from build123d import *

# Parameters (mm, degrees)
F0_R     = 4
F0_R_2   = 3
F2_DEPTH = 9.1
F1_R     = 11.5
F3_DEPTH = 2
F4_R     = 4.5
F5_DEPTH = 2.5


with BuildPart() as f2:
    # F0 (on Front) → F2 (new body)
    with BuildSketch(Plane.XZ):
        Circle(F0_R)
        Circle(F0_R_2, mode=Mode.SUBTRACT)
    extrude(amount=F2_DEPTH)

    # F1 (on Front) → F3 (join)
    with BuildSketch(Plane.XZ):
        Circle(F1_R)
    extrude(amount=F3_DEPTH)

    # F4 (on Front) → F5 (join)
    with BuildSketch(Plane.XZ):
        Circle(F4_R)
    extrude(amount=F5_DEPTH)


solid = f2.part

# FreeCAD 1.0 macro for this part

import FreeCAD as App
import Part
import Sketcher

V = App.Vector
Q = App.Units.Quantity

doc = App.newDocument("Part")
body = doc.addObject("PartDesign::Body", "Body")

sketch1 = doc.addObject("Sketcher::SketchObject", "Sketch")
body.addObject(sketch1)
sketch1.AttachmentSupport = (doc.XZ_Plane, [""])
sketch1.MapMode = "FlatFace"
sketch1.addGeometry([
    Part.Circle(V(0, 0, 0), V(0, 0, 1), 4),
    Part.Circle(V(0, 0, 0), V(0, 0, 1), 3),
], False)
sketch1.addConstraint([
    Sketcher.Constraint("Coincident", 0, 3, -1, 1),
    Sketcher.Constraint("Coincident", 1, 3, -1, 1),
    Sketcher.Constraint("Diameter", 0, Q("8 mm")),
    Sketcher.Constraint("Diameter", 1, Q("6 mm")),
])
pad1 = doc.addObject("PartDesign::Pad", "Pad")
body.addObject(pad1)
pad1.Profile = sketch1
pad1.Length = 9.1

sketch2 = doc.addObject("Sketcher::SketchObject", "Sketch001")
body.addObject(sketch2)
sketch2.AttachmentSupport = (doc.XZ_Plane, [""])
sketch2.MapMode = "FlatFace"
sketch2.addGeometry(Part.Circle(V(0, 0, 0), V(0, 0, 1), 12), False)
sketch2.addConstraint([
    Sketcher.Constraint("Coincident", 0, 3, -1, 1),
    Sketcher.Constraint("Diameter", 0, Q("23 mm")),
])
pad2 = doc.addObject("PartDesign::Pad", "Pad001")
body.addObject(pad2)
pad2.Profile = sketch2
pad2.Length = 2

sketch3 = doc.addObject("Sketcher::SketchObject", "Sketch002")
body.addObject(sketch3)
sketch3.AttachmentSupport = (doc.XZ_Plane, [""])
sketch3.MapMode = "FlatFace"
sketch3.addGeometry(Part.Circle(V(0, 0, 0), V(0, 0, 1), 4.5), False)
sketch3.addConstraint([
    Sketcher.Constraint("Coincident", 0, 3, -1, 1),
    Sketcher.Constraint("Diameter", 0, Q("9 mm")),
])
pad3 = doc.addObject("PartDesign::Pad", "Pad002")
body.addObject(pad3)
pad3.Profile = sketch3
pad3.Length = 2.5

doc.recompute()
